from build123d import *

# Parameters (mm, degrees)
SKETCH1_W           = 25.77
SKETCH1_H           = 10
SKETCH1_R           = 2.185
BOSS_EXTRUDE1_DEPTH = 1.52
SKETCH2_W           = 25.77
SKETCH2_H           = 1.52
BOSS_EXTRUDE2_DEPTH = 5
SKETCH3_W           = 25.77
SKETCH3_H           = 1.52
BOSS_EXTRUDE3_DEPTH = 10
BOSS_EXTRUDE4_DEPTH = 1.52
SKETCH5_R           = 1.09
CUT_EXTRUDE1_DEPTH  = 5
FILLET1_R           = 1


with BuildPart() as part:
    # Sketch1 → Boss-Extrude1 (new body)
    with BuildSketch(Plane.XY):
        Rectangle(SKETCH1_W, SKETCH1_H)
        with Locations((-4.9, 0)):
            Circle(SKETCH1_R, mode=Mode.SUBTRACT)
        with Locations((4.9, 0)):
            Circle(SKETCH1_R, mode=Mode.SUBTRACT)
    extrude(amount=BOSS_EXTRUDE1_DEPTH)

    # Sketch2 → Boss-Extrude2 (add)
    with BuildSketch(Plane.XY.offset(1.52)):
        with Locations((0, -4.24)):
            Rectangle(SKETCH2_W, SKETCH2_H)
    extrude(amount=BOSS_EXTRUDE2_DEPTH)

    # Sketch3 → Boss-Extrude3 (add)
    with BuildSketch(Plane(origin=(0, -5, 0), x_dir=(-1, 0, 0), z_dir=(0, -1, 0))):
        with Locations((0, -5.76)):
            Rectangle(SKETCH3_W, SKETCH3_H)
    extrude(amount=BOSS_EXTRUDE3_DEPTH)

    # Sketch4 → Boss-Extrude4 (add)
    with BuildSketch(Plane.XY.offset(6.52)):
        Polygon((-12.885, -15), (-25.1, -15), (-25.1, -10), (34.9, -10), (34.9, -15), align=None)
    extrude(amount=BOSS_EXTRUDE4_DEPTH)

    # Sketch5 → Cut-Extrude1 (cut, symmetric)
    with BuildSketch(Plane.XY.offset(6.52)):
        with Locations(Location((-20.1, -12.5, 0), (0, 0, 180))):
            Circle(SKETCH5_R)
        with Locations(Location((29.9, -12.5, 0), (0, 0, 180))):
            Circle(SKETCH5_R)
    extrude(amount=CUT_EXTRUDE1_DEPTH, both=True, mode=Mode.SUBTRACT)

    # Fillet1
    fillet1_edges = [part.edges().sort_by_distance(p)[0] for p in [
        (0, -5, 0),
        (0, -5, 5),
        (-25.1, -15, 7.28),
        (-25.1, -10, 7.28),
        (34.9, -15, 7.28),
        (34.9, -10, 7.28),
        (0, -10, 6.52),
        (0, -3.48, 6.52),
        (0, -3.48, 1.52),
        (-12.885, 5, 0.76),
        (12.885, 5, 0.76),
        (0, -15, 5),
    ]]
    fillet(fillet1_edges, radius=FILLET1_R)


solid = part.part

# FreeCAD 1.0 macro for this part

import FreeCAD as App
import Part
import Sketcher

V = App.Vector


def edges_at(feature, points):
    """Names of the edges that pass closest to the given points."""
    edges = feature.Shape.Edges
    near = lambda p: min(range(len(edges)), key=lambda i: edges[i].distToShape(Part.Vertex(*p))[0])
    return sorted({f"Edge{near(p) + 1}" for p in points})

doc = App.newDocument("Part")
body = doc.addObject("PartDesign::Body", "Body")

# Sketch on XY plane
sketch1 = body.newObject("Sketcher::SketchObject", "Sketch")
sketch1.AttachmentSupport = (doc.getObject("XY_Plane"), [""])
sketch1.MapMode = "FlatFace"
sketch1.addGeometry(Part.LineSegment(V(-12.9, 5, 0), V(-12.9, -5, 0)), False)
sketch1.addGeometry(Part.LineSegment(V(-12.9, -5, 0), V(12.9, -5, 0)), False)
sketch1.addGeometry(Part.LineSegment(V(12.9, -5, 0), V(12.9, 5, 0)), False)
sketch1.addGeometry(Part.LineSegment(V(12.9, 5, 0), V(-12.9, 5, 0)), False)
sketch1.addGeometry(Part.Circle(V(-4.9, 0, 0), V(0, 0, 1), 2.2), False)
sketch1.addGeometry(Part.Circle(V(4.9, 0, 0), V(0, 0, 1), 2.2), False)
sketch1.addConstraint(Sketcher.Constraint("Coincident", 0, 2, 1, 1))
sketch1.addConstraint(Sketcher.Constraint("Coincident", 1, 2, 2, 1))
sketch1.addConstraint(Sketcher.Constraint("Coincident", 2, 2, 3, 1))
sketch1.addConstraint(Sketcher.Constraint("Coincident", 3, 2, 0, 1))
sketch1.addConstraint(Sketcher.Constraint("Vertical", 0))
sketch1.addConstraint(Sketcher.Constraint("Horizontal", 1))
sketch1.addConstraint(Sketcher.Constraint("Vertical", 2))
sketch1.addConstraint(Sketcher.Constraint("Horizontal", 3))
sketch1.addConstraint(Sketcher.Constraint("Equal", 4, 5))
sketch1.addConstraint(Sketcher.Constraint("Symmetric", 4, 3, 5, 3, -1, 1))
sketch1.addConstraint(Sketcher.Constraint("Symmetric", 0, 2, 2, 2, -1, 1))
sketch1.addConstraint(Sketcher.Constraint("PointOnObject", 4, 3, -1))
sketch1.addConstraint(Sketcher.Constraint("Diameter", 4, 4.37))
sketch1.addConstraint(Sketcher.Constraint("DistanceY", 0, 2, 0, 1, 10.0))
sketch1.addConstraint(Sketcher.Constraint("DistanceX", 1, 1, 1, 2, 25.77))
sketch1.addConstraint(Sketcher.Constraint("DistanceX", 4, 3, -1, 1, 4.9))
pad1 = body.newObject("PartDesign::Pad", "Pad")
pad1.Profile = sketch1
pad1.Length = 1.52

# Sketch on XY plane
sketch2 = body.newObject("Sketcher::SketchObject", "Sketch001")
sketch2.AttachmentSupport = (doc.getObject("XY_Plane"), [""])
sketch2.MapMode = "FlatFace"
sketch2.AttachmentOffset = App.Placement(V(0, 0, 1.52), App.Rotation())
sketch2.addGeometry(Part.LineSegment(V(-12.9, -3.5, 0), V(-12.9, -5, 0)), False)
sketch2.addGeometry(Part.LineSegment(V(-12.9, -5, 0), V(12.9, -5, 0)), False)
sketch2.addGeometry(Part.LineSegment(V(12.9, -5, 0), V(12.9, -3.5, 0)), False)
sketch2.addGeometry(Part.LineSegment(V(12.9, -3.5, 0), V(-12.9, -3.5, 0)), False)
sketch2.addConstraint(Sketcher.Constraint("Coincident", 0, 2, 1, 1))
sketch2.addConstraint(Sketcher.Constraint("Coincident", 1, 2, 2, 1))
sketch2.addConstraint(Sketcher.Constraint("Coincident", 2, 2, 3, 1))
sketch2.addConstraint(Sketcher.Constraint("Coincident", 3, 2, 0, 1))
sketch2.addConstraint(Sketcher.Constraint("Vertical", 0))
sketch2.addConstraint(Sketcher.Constraint("Horizontal", 1))
sketch2.addConstraint(Sketcher.Constraint("Vertical", 2))
sketch2.addConstraint(Sketcher.Constraint("Horizontal", 3))
sketch2.addConstraint(Sketcher.Constraint("DistanceY", 0, 2, -1, 1, 5.0))
sketch2.addConstraint(Sketcher.Constraint("DistanceX", 1, 1, 1, 2, 25.77))
sketch2.addConstraint(Sketcher.Constraint("DistanceY", 0, 2, 0, 1, 1.52))
sketch2.addConstraint(Sketcher.Constraint("DistanceX", 0, 2, -1, 1, 12.885))
pad2 = body.newObject("PartDesign::Pad", "Pad001")
pad2.Profile = sketch2
pad2.Length = 5

# Sketch on XZ plane
sketch3 = body.newObject("Sketcher::SketchObject", "Sketch002")
sketch3.AttachmentSupport = (doc.getObject("XZ_Plane"), [""])
sketch3.MapMode = "FlatFace"
sketch3.AttachmentOffset = App.Placement(V(0, 0, 5), App.Rotation())
sketch3.addGeometry(Part.LineSegment(V(12.9, 5, 0), V(12.9, 6.5, 0)), False)
sketch3.addGeometry(Part.LineSegment(V(12.9, 6.5, 0), V(-12.9, 6.5, 0)), False)
sketch3.addGeometry(Part.LineSegment(V(-12.9, 6.5, 0), V(-12.9, 5, 0)), False)
sketch3.addGeometry(Part.LineSegment(V(-12.9, 5, 0), V(12.9, 5, 0)), False)
sketch3.addConstraint(Sketcher.Constraint("Coincident", 0, 2, 1, 1))
sketch3.addConstraint(Sketcher.Constraint("Coincident", 1, 2, 2, 1))
sketch3.addConstraint(Sketcher.Constraint("Coincident", 2, 2, 3, 1))
sketch3.addConstraint(Sketcher.Constraint("Coincident", 3, 2, 0, 1))
sketch3.addConstraint(Sketcher.Constraint("Vertical", 0))
sketch3.addConstraint(Sketcher.Constraint("Horizontal", 1))
sketch3.addConstraint(Sketcher.Constraint("Vertical", 2))
sketch3.addConstraint(Sketcher.Constraint("Horizontal", 3))
sketch3.addConstraint(Sketcher.Constraint("DistanceY", -1, 1, 2, 2, 5.0))
sketch3.addConstraint(Sketcher.Constraint("DistanceX", 1, 2, 1, 1, 25.77))
sketch3.addConstraint(Sketcher.Constraint("DistanceY", 0, 1, 0, 2, 1.52))
sketch3.addConstraint(Sketcher.Constraint("DistanceX", -1, 1, 0, 2, 12.885))
pad3 = body.newObject("PartDesign::Pad", "Pad002")
pad3.Profile = sketch3
pad3.Length = 10

# Sketch on XY plane
sketch4 = body.newObject("Sketcher::SketchObject", "Sketch003")
sketch4.AttachmentSupport = (doc.getObject("XY_Plane"), [""])
sketch4.MapMode = "FlatFace"
sketch4.AttachmentOffset = App.Placement(V(0, 0, 6.52), App.Rotation())
sketch4.addGeometry(Part.LineSegment(V(-25, -15, 0), V(35, -15, 0)), False)
sketch4.addGeometry(Part.LineSegment(V(35, -15, 0), V(35, -10, 0)), False)
sketch4.addGeometry(Part.LineSegment(V(35, -10, 0), V(-25, -10, 0)), False)
sketch4.addGeometry(Part.LineSegment(V(-25, -10, 0), V(-25, -15, 0)), False)
sketch4.addConstraint(Sketcher.Constraint("Coincident", 0, 2, 1, 1))
sketch4.addConstraint(Sketcher.Constraint("Coincident", 1, 2, 2, 1))
sketch4.addConstraint(Sketcher.Constraint("Coincident", 2, 2, 3, 1))
sketch4.addConstraint(Sketcher.Constraint("Coincident", 3, 2, 0, 1))
sketch4.addConstraint(Sketcher.Constraint("Horizontal", 0))
sketch4.addConstraint(Sketcher.Constraint("Vertical", 1))
sketch4.addConstraint(Sketcher.Constraint("Horizontal", 2))
sketch4.addConstraint(Sketcher.Constraint("Vertical", 3))
sketch4.addConstraint(Sketcher.Constraint("DistanceX", 0, 1, 0, 2, 60.0))
sketch4.addConstraint(Sketcher.Constraint("DistanceY", 1, 1, 1, 2, 5.0))
sketch4.addConstraint(Sketcher.Constraint("DistanceY", 0, 2, -1, 1, 15.0))
sketch4.addConstraint(Sketcher.Constraint("DistanceX", -1, 1, 0, 2, 34.9))
pad4 = body.newObject("PartDesign::Pad", "Pad003")
pad4.Profile = sketch4
pad4.Length = 1.52

# Sketch on XY plane
sketch5 = body.newObject("Sketcher::SketchObject", "Sketch004")
sketch5.AttachmentSupport = (doc.getObject("XY_Plane"), [""])
sketch5.MapMode = "FlatFace"
sketch5.AttachmentOffset = App.Placement(V(0, 0, 6.52), App.Rotation())
sketch5.addGeometry(Part.Circle(V(-20.1, -12.5, 0), V(0, 0, 1), 1.1), False)
sketch5.addGeometry(Part.Circle(V(29.9, -12.5, 0), V(0, 0, 1), 1.1), False)
sketch5.addConstraint(Sketcher.Constraint("Equal", 0, 1))
sketch5.addConstraint(Sketcher.Constraint("Horizontal", 0, 3, 1, 3))
sketch5.addConstraint(Sketcher.Constraint("Diameter", 0, 2.18))
sketch5.addConstraint(Sketcher.Constraint("DistanceX", 0, 3, 1, 3, 50.0))
sketch5.addConstraint(Sketcher.Constraint("DistanceX", 0, 3, -1, 1, 20.1))
sketch5.addConstraint(Sketcher.Constraint("DistanceY", 0, 3, -1, 1, 12.5))
pocket1 = body.newObject("PartDesign::Pocket", "Pocket")
pocket1.Profile = sketch5
pocket1.Length = 10
pocket1.Midplane = True
doc.recompute()

fillet = body.newObject("PartDesign::Fillet", "Fillet")
fillet.Base = (pocket1, edges_at(pocket1, [
    (0, -5, 0),
    (0, -5, 5),
    (-25.1, -15, 7.28),
    (-25.1, -10, 7.28),
    (34.9, -15, 7.28),
    (34.9, -10, 7.28),
    (0, -10, 6.52),
    (0, -3.48, 6.52),
    (0, -3.48, 1.52),
    (-12.885, 5, 0.76),
    (12.885, 5, 0.76),
    (0, -15, 5),
]))
fillet.Radius = 1

doc.recompute()
